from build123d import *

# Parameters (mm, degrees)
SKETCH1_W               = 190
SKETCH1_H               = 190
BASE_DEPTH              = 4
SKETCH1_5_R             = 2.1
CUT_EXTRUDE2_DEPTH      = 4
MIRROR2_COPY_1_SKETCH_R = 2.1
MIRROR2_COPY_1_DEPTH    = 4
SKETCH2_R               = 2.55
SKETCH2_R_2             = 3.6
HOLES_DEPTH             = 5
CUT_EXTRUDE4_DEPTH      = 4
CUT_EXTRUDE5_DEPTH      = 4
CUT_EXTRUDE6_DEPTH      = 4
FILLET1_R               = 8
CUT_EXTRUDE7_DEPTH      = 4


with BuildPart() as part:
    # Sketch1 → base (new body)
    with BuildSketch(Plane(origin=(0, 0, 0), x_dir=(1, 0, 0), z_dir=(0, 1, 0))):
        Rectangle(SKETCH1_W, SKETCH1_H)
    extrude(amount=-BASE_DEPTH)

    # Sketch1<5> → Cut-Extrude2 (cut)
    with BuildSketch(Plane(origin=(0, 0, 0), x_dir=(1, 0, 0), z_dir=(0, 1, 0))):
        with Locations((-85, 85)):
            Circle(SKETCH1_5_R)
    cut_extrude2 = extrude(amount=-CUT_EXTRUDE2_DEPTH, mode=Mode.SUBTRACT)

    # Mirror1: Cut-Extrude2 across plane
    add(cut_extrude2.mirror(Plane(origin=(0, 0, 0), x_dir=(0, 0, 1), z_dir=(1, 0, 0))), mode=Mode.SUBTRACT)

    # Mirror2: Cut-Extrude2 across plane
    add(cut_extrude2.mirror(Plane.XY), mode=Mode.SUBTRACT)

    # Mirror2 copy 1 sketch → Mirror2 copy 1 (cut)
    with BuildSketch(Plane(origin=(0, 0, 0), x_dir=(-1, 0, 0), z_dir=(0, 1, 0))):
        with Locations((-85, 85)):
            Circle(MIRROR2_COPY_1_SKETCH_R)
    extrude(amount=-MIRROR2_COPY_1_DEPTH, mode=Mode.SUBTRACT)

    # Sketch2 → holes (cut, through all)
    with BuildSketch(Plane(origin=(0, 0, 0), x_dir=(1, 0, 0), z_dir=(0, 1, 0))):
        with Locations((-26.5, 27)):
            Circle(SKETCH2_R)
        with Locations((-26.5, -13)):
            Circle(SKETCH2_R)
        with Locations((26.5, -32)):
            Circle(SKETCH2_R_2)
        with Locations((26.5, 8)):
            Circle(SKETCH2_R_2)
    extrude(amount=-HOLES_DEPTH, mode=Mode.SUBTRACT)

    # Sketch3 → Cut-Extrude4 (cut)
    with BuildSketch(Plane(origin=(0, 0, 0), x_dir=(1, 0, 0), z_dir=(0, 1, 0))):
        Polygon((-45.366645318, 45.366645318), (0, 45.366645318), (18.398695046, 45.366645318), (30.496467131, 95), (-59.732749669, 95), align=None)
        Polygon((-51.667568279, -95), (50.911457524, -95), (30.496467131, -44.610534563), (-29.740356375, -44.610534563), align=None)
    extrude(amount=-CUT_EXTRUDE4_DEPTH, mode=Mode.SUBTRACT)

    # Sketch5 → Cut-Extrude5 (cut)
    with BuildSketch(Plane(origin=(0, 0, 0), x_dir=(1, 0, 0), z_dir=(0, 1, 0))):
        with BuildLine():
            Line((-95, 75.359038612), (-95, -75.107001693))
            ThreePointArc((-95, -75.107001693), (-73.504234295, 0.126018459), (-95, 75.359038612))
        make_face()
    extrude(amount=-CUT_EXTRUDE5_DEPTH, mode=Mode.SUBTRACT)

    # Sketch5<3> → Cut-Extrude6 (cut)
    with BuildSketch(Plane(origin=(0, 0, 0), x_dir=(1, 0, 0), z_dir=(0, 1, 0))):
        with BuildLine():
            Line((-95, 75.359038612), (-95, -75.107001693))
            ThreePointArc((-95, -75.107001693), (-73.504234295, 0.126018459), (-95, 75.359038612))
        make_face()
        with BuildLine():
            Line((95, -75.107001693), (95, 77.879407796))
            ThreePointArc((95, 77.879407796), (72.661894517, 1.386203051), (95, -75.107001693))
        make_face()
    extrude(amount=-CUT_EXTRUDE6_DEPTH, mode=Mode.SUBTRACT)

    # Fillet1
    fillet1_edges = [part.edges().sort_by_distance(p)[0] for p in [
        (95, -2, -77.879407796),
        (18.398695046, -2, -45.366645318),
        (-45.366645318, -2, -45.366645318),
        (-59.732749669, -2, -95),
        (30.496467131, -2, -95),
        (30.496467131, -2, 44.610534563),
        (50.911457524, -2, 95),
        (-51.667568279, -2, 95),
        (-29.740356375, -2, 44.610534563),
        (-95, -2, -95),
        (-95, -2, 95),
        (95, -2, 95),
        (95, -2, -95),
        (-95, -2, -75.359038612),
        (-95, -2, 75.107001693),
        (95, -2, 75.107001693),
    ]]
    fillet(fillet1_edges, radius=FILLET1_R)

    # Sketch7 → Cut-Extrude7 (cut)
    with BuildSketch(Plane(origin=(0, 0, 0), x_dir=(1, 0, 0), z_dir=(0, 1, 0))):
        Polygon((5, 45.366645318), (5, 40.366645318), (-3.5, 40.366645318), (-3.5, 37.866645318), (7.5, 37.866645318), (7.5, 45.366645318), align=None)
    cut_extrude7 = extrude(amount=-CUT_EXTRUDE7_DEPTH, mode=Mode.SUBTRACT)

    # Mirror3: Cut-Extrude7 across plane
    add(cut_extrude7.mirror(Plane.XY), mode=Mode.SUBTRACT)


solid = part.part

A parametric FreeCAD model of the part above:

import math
import FreeCAD as App
import Part
import Sketcher
Q = App.Units.Quantity


def edges_at(feature, points):
    """Names of the edges that pass closest to the given points."""
    edges = feature.Shape.Edges
    near = lambda p: min(range(len(edges)), key=lambda i: edges[i].distToShape(Part.Vertex(*p))[0])
    return sorted({f"Edge{near(p) + 1}" for p in points})


def add_polygon(sketch, points):
    """Adds a closed chain of lines whose ends are joined by coincident constraints."""
    first, n = sketch.GeometryCount, len(points)
    for a, b in zip(points, points[1:] + points[:1]):
        sketch.addGeometry(Part.LineSegment(App.Vector(*a, 0), App.Vector(*b, 0)), False)
    for i in range(n):
        sketch.addConstraint(Sketcher.Constraint("Coincident", first + i, 2, first + (i + 1) % n, 1))

doc = App.newDocument("Part")
params = doc.addObject("Spreadsheet::Sheet", "Params")
for row, (alias, value) in enumerate([
    ("sketch1_width", "190 mm"),
    ("pad1_length", "4 mm"),
    ("sketch2_diameter", "4.2 mm"),
    ("pocket1_length", "4 mm"),
    ("sketch3_diameter", "4.2 mm"),
    ("pocket2_length", "4 mm"),
    ("sketch4_diameter", "5.1 mm"),
    ("sketch4_diameter2", "7.2 mm"),
    ("pocket4_length", "4 mm"),
    ("pocket5_length", "4 mm"),
    ("pocket6_length", "4 mm"),
    ("fillet_radius", "8 mm"),
    ("sketch8_width", "11 mm"),
    ("sketch8_height", "5 mm"),
    ("sketch8_width2", "8.5 mm"),
    ("pocket7_length", "4 mm"),
], start=1):
    params.set(f"A{row}", alias)
    params.set(f"B{row}", "=" + value)
    params.setAlias(f"B{row}", alias)

body = doc.addObject("PartDesign::Body", "Body")

# Sketch on XZ plane
sketch1 = body.newObject("Sketcher::SketchObject", "Sketch")
sketch1.AttachmentSupport = (doc.getObject("XZ_Plane"), [""])
sketch1.MapMode = "FlatFace"
add_polygon(sketch1, [(-95, -95), (-95, 95), (95, 95), (95, -95)])  # lines 0-3
sketch1.addConstraint([
    Sketcher.Constraint("Vertical", 0),
    Sketcher.Constraint("Horizontal", 1),
    Sketcher.Constraint("Vertical", 2),
    Sketcher.Constraint("Horizontal", 3),
    Sketcher.Constraint("Symmetric", 0, 2, 2, 2, -1, 1),
    Sketcher.Constraint("Equal", 3, 0),
    Sketcher.Constraint("DistanceX", 1, 1, 1, 2, Q("190 mm")),
])
sketch1.setExpression("Constraints[10]", "Params.sketch1_width")
pad1 = body.newObject("PartDesign::Pad", "Pad")
pad1.Profile = sketch1
pad1.setExpression("Length", "Params.pad1_length")

# Sketch on XZ plane
sketch2 = body.newObject("Sketcher::SketchObject", "Sketch001")
sketch2.AttachmentSupport = (doc.getObject("XZ_Plane"), [""])
sketch2.MapMode = "FlatFace"
sketch2.addGeometry(Part.Circle(App.Vector(-85, -85, 0), App.Vector(0, 0, 1), 2.1), False)
sketch2.addConstraint([
    Sketcher.Constraint("Diameter", 0, Q("4.2 mm")),
    Sketcher.Constraint("DistanceX", 0, 3, -1, 1, Q("85 mm")),
    Sketcher.Constraint("DistanceY", 0, 3, -1, 1, Q("85 mm")),
])
sketch2.setExpression("Constraints[0]", "Params.sketch2_diameter")
pocket1 = body.newObject("PartDesign::Pocket", "Pocket")
pocket1.Profile = sketch2
pocket1.setExpression("Length", "Params.pocket1_length")
pocket1.Reversed = True
doc.recompute()

mirrored = body.newObject("PartDesign::Mirrored", "Mirrored")
mirrored.Originals = [pocket1]
mirrored.MirrorPlane = (doc.getObject("YZ_Plane"), [""])
body.Tip = mirrored
doc.recompute()

mirrored2 = body.newObject("PartDesign::Mirrored", "Mirrored001")
mirrored2.Originals = [pocket1]
mirrored2.MirrorPlane = (doc.getObject("XY_Plane"), [""])
body.Tip = mirrored2

# Sketch on XZ plane
sketch3 = body.newObject("Sketcher::SketchObject", "Sketch002")
sketch3.AttachmentSupport = (doc.getObject("XZ_Plane"), [""])
sketch3.MapMode = "FlatFace"
sketch3.addGeometry(Part.Circle(App.Vector(85, 85, 0), App.Vector(0, 0, 1), 2.1), False)
sketch3.addConstraint([
    Sketcher.Constraint("Diameter", 0, Q("4.2 mm")),
    Sketcher.Constraint("DistanceX", -1, 1, 0, 3, Q("85 mm")),
    Sketcher.Constraint("DistanceY", -1, 1, 0, 3, Q("85 mm")),
])
sketch3.setExpression("Constraints[0]", "Params.sketch3_diameter")
pocket2 = body.newObject("PartDesign::Pocket", "Pocket001")
pocket2.Profile = sketch3
pocket2.setExpression("Length", "Params.pocket2_length")
pocket2.Reversed = True

# Sketch on XZ plane
sketch4 = body.newObject("Sketcher::SketchObject", "Sketch003")
sketch4.AttachmentSupport = (doc.getObject("XZ_Plane"), [""])
sketch4.MapMode = "FlatFace"
sketch4.addGeometry([
    Part.Circle(App.Vector(-26.5, -27, 0), App.Vector(0, 0, 1), 2.5),
    Part.Circle(App.Vector(-26.5, 13, 0), App.Vector(0, 0, 1), 2.5),
    Part.Circle(App.Vector(26.5, 32, 0), App.Vector(0, 0, 1), 3.6),
    Part.Circle(App.Vector(26.5, -8, 0), App.Vector(0, 0, 1), 3.6),
], False)
sketch4.addConstraint([
    Sketcher.Constraint("Equal", 0, 1),
    Sketcher.Constraint("Equal", 2, 3),
    Sketcher.Constraint("Vertical", 0, 3, 1, 3),
    Sketcher.Constraint("Vertical", 2, 3, 3, 3),
    Sketcher.Constraint("Diameter", 0, Q("5.1 mm")),
    Sketcher.Constraint("Diameter", 2, Q("7.2 mm")),
    Sketcher.Constraint("DistanceY", 0, 3, -1, 1, Q("27 mm")),
    Sketcher.Constraint("DistanceY", -1, 1, 1, 3, Q("13 mm")),
    Sketcher.Constraint("DistanceY", -1, 1, 2, 3, Q("32 mm")),
    Sketcher.Constraint("DistanceY", 3, 3, -1, 1, Q("8 mm")),
    Sketcher.Constraint("DistanceX", 1, 3, 2, 3, Q("53 mm")),
    Sketcher.Constraint("DistanceX", 0, 3, -1, 1, Q("26.5 mm")),
])
sketch4.setExpression("Constraints[4]", "Params.sketch4_diameter")
sketch4.setExpression("Constraints[5]", "Params.sketch4_diameter2")
pocket3 = body.newObject("PartDesign::Pocket", "Pocket002")
pocket3.Profile = sketch4
pocket3.Type = "ThroughAll"
pocket3.Reversed = True

# Sketch on XZ plane
sketch5 = body.newObject("Sketcher::SketchObject", "Sketch004")
sketch5.AttachmentSupport = (doc.getObject("XZ_Plane"), [""])
sketch5.MapMode = "FlatFace"
add_polygon(sketch5, [(-45, -45), (18, -45), (30, -95), (-60, -95)])  # lines 0-3
add_polygon(sketch5, [(-52, 95), (51, 95), (30, 45), (-30, 45)])  # lines 4-7
sketch5.addConstraint([
    Sketcher.Constraint("Horizontal", 0),
    Sketcher.Constraint("Horizontal", 2),
    Sketcher.Constraint("Horizontal", 4),
    Sketcher.Constraint("Horizontal", 6),
    Sketcher.Constraint("Vertical", 1, 2, 5, 2),
    Sketcher.Constraint("DistanceY", 1, 2, -1, 1, Q("95 mm")),
    Sketcher.Constraint("DistanceY", -1, 1, 4, 2, Q("95 mm")),
    Sketcher.Constraint("DistanceX", 0, 1, 0, 2, Q("63.76534 mm")),
    Sketcher.Constraint("Distance", 3, Q("51.670638 mm")),
    Sketcher.Constraint("DistanceX", 2, 2, 2, 1, Q("90.229217 mm")),
    Sketcher.Constraint("DistanceX", 4, 1, 4, 2, Q("102.579026 mm")),
    Sketcher.Constraint("DistanceX", 6, 2, 6, 1, Q("60.236824 mm")),
    Sketcher.Constraint("DistanceX", 2, 2, -1, 1, Q("59.73275 mm")),
    Sketcher.Constraint("DistanceX", 7, 2, -1, 1, Q("51.667568 mm")),
    Sketcher.Constraint("DistanceY", 0, 2, 5, 2, Q("89.97718 mm")),
    Sketcher.Constraint("DistanceX", 3, 2, 6, 2, Q("15.626289 mm")),
])
pocket4 = body.newObject("PartDesign::Pocket", "Pocket003")
pocket4.Profile = sketch5
pocket4.setExpression("Length", "Params.pocket4_length")
pocket4.Reversed = True

# Sketch on XZ plane
sketch6 = body.newObject("Sketcher::SketchObject", "Sketch005")
sketch6.AttachmentSupport = (doc.getObject("XZ_Plane"), [""])
sketch6.MapMode = "FlatFace"
sketch6.addGeometry([
    Part.LineSegment(App.Vector(-95, -75, 0), App.Vector(-95, 75, 0)),
    Part.ArcOfCircle(Part.Circle(App.Vector(-216, 0, 0), App.Vector(0, 0, 1), 142), math.radians(-32), math.radians(32)),
], False)
sketch6.addConstraint([
    Sketcher.Constraint("Coincident", 0, 1, 1, 1),
    Sketcher.Constraint("Coincident", 1, 2, 0, 2),
    Sketcher.Constraint("Vertical", 0),
    Sketcher.Constraint("DistanceX", 0, 1, -1, 1, Q("95 mm")),
    Sketcher.Constraint("Radius", 1, Q("142.401889 mm")),
    Sketcher.Constraint("DistanceY", -1, 1, 1, 2, Q("75.107002 mm")),
    Sketcher.Constraint("DistanceY", 0, 1, 0, 2, Q("150.46604 mm")),
])
pocket5 = body.newObject("PartDesign::Pocket", "Pocket004")
pocket5.Profile = sketch6
pocket5.setExpression("Length", "Params.pocket5_length")
pocket5.Reversed = True

# Sketch on XZ plane
sketch7 = body.newObject("Sketcher::SketchObject", "Sketch006")
sketch7.AttachmentSupport = (doc.getObject("XZ_Plane"), [""])
sketch7.MapMode = "FlatFace"
sketch7.addGeometry([
    Part.LineSegment(App.Vector(-95, -75, 0), App.Vector(-95, 75, 0)),
    Part.ArcOfCircle(Part.Circle(App.Vector(-216, 0, 0), App.Vector(0, 0, 1), 142), math.radians(-32), math.radians(32)),
    Part.LineSegment(App.Vector(95, 75, 0), App.Vector(95, -78, 0)),
    Part.ArcOfCircle(Part.Circle(App.Vector(215, -1, 0), App.Vector(0, 0, 1), 142), math.radians(147), math.radians(213)),
], False)
sketch7.addConstraint([
    Sketcher.Constraint("Coincident", 0, 1, 1, 1),
    Sketcher.Constraint("Coincident", 1, 2, 0, 2),
    Sketcher.Constraint("Coincident", 2, 1, 3, 1),
    Sketcher.Constraint("Coincident", 3, 2, 2, 2),
    Sketcher.Constraint("Vertical", 0),
    Sketcher.Constraint("Vertical", 2),
    Sketcher.Constraint("Symmetric", 1, 2, 2, 1, -2),
    Sketcher.Constraint("DistanceX", 0, 1, -1, 1, Q("95 mm")),
    Sketcher.Constraint("Radius", 1, Q("142.401889 mm")),
    Sketcher.Constraint("DistanceY", -1, 1, 1, 2, Q("75.107002 mm")),
    Sketcher.Constraint("Radius", 3, Q("142.138315 mm")),
    Sketcher.Constraint("DistanceY", 0, 1, 0, 2, Q("150.46604 mm")),
    Sketcher.Constraint("DistanceY", 2, 2, 2, 1, Q("152.986409 mm")),
])
pocket6 = body.newObject("PartDesign::Pocket", "Pocket005")
pocket6.Profile = sketch7
pocket6.setExpression("Length", "Params.pocket6_length")
pocket6.Reversed = True
doc.recompute()

fillet = body.newObject("PartDesign::Fillet", "Fillet")
fillet.Base = (pocket6, edges_at(pocket6, [
    (95, -2, -77.879),
    (18.399, -2, -45.367),
    (-45.367, -2, -45.367),
    (-59.733, -2, -95),
    (30.496, -2, -95),
    (30.496, -2, 44.611),
    (50.911, -2, 95),
    (-51.668, -2, 95),
    (-29.74, -2, 44.611),
    (-95, -2, -95),
    (-95, -2, 95),
    (95, -2, 95),
    (95, -2, -95),
    (-95, -2, -75.359),
    (-95, -2, 75.107),
    (95, -2, 75.107),
]))
fillet.setExpression("Radius", "Params.fillet_radius")

# Sketch on XZ plane
sketch8 = body.newObject("Sketcher::SketchObject", "Sketch007")
sketch8.AttachmentSupport = (doc.getObject("XZ_Plane"), [""])
sketch8.MapMode = "FlatFace"
add_polygon(sketch8, [(5, -45.4), (5, -40.4), (-3.5, -40.4), (-3.5, -37.9), (7.5, -37.9), (7.5, -45.4)])  # lines 0-5
sketch8.addConstraint([
    Sketcher.Constraint("Vertical", 0),
    Sketcher.Constraint("Horizontal", 1),
    Sketcher.Constraint("Vertical", 2),
    Sketcher.Constraint("Horizontal", 3),
    Sketcher.Constraint("Vertical", 4),
    Sketcher.Constraint("Horizontal", 5),
    Sketcher.Constraint("Equal", 5, 2),
    Sketcher.Constraint("DistanceX", 3, 1, 3, 2, Q("11 mm")),
    Sketcher.Constraint("DistanceY", 0, 1, 0, 2, Q("5 mm")),
    Sketcher.Constraint("DistanceX", 1, 2, 1, 1, Q("8.5 mm")),
    Sketcher.Constraint("DistanceX", -1, 1, 0, 2, Q("5 mm")),
    Sketcher.Constraint("DistanceY", 0, 2, -1, 1, Q("40.366645 mm")),
])
sketch8.setExpression("Constraints[13]", "Params.sketch8_width")
sketch8.setExpression("Constraints[14]", "Params.sketch8_height")
sketch8.setExpression("Constraints[15]", "Params.sketch8_width2")
pocket7 = body.newObject("PartDesign::Pocket", "Pocket006")
pocket7.Profile = sketch8
pocket7.setExpression("Length", "Params.pocket7_length")
pocket7.Reversed = True
doc.recompute()

mirrored3 = body.newObject("PartDesign::Mirrored", "Mirrored002")
mirrored3.Originals = [pocket7]
mirrored3.MirrorPlane = (doc.getObject("XY_Plane"), [""])
body.Tip = mirrored3

doc.recompute()
